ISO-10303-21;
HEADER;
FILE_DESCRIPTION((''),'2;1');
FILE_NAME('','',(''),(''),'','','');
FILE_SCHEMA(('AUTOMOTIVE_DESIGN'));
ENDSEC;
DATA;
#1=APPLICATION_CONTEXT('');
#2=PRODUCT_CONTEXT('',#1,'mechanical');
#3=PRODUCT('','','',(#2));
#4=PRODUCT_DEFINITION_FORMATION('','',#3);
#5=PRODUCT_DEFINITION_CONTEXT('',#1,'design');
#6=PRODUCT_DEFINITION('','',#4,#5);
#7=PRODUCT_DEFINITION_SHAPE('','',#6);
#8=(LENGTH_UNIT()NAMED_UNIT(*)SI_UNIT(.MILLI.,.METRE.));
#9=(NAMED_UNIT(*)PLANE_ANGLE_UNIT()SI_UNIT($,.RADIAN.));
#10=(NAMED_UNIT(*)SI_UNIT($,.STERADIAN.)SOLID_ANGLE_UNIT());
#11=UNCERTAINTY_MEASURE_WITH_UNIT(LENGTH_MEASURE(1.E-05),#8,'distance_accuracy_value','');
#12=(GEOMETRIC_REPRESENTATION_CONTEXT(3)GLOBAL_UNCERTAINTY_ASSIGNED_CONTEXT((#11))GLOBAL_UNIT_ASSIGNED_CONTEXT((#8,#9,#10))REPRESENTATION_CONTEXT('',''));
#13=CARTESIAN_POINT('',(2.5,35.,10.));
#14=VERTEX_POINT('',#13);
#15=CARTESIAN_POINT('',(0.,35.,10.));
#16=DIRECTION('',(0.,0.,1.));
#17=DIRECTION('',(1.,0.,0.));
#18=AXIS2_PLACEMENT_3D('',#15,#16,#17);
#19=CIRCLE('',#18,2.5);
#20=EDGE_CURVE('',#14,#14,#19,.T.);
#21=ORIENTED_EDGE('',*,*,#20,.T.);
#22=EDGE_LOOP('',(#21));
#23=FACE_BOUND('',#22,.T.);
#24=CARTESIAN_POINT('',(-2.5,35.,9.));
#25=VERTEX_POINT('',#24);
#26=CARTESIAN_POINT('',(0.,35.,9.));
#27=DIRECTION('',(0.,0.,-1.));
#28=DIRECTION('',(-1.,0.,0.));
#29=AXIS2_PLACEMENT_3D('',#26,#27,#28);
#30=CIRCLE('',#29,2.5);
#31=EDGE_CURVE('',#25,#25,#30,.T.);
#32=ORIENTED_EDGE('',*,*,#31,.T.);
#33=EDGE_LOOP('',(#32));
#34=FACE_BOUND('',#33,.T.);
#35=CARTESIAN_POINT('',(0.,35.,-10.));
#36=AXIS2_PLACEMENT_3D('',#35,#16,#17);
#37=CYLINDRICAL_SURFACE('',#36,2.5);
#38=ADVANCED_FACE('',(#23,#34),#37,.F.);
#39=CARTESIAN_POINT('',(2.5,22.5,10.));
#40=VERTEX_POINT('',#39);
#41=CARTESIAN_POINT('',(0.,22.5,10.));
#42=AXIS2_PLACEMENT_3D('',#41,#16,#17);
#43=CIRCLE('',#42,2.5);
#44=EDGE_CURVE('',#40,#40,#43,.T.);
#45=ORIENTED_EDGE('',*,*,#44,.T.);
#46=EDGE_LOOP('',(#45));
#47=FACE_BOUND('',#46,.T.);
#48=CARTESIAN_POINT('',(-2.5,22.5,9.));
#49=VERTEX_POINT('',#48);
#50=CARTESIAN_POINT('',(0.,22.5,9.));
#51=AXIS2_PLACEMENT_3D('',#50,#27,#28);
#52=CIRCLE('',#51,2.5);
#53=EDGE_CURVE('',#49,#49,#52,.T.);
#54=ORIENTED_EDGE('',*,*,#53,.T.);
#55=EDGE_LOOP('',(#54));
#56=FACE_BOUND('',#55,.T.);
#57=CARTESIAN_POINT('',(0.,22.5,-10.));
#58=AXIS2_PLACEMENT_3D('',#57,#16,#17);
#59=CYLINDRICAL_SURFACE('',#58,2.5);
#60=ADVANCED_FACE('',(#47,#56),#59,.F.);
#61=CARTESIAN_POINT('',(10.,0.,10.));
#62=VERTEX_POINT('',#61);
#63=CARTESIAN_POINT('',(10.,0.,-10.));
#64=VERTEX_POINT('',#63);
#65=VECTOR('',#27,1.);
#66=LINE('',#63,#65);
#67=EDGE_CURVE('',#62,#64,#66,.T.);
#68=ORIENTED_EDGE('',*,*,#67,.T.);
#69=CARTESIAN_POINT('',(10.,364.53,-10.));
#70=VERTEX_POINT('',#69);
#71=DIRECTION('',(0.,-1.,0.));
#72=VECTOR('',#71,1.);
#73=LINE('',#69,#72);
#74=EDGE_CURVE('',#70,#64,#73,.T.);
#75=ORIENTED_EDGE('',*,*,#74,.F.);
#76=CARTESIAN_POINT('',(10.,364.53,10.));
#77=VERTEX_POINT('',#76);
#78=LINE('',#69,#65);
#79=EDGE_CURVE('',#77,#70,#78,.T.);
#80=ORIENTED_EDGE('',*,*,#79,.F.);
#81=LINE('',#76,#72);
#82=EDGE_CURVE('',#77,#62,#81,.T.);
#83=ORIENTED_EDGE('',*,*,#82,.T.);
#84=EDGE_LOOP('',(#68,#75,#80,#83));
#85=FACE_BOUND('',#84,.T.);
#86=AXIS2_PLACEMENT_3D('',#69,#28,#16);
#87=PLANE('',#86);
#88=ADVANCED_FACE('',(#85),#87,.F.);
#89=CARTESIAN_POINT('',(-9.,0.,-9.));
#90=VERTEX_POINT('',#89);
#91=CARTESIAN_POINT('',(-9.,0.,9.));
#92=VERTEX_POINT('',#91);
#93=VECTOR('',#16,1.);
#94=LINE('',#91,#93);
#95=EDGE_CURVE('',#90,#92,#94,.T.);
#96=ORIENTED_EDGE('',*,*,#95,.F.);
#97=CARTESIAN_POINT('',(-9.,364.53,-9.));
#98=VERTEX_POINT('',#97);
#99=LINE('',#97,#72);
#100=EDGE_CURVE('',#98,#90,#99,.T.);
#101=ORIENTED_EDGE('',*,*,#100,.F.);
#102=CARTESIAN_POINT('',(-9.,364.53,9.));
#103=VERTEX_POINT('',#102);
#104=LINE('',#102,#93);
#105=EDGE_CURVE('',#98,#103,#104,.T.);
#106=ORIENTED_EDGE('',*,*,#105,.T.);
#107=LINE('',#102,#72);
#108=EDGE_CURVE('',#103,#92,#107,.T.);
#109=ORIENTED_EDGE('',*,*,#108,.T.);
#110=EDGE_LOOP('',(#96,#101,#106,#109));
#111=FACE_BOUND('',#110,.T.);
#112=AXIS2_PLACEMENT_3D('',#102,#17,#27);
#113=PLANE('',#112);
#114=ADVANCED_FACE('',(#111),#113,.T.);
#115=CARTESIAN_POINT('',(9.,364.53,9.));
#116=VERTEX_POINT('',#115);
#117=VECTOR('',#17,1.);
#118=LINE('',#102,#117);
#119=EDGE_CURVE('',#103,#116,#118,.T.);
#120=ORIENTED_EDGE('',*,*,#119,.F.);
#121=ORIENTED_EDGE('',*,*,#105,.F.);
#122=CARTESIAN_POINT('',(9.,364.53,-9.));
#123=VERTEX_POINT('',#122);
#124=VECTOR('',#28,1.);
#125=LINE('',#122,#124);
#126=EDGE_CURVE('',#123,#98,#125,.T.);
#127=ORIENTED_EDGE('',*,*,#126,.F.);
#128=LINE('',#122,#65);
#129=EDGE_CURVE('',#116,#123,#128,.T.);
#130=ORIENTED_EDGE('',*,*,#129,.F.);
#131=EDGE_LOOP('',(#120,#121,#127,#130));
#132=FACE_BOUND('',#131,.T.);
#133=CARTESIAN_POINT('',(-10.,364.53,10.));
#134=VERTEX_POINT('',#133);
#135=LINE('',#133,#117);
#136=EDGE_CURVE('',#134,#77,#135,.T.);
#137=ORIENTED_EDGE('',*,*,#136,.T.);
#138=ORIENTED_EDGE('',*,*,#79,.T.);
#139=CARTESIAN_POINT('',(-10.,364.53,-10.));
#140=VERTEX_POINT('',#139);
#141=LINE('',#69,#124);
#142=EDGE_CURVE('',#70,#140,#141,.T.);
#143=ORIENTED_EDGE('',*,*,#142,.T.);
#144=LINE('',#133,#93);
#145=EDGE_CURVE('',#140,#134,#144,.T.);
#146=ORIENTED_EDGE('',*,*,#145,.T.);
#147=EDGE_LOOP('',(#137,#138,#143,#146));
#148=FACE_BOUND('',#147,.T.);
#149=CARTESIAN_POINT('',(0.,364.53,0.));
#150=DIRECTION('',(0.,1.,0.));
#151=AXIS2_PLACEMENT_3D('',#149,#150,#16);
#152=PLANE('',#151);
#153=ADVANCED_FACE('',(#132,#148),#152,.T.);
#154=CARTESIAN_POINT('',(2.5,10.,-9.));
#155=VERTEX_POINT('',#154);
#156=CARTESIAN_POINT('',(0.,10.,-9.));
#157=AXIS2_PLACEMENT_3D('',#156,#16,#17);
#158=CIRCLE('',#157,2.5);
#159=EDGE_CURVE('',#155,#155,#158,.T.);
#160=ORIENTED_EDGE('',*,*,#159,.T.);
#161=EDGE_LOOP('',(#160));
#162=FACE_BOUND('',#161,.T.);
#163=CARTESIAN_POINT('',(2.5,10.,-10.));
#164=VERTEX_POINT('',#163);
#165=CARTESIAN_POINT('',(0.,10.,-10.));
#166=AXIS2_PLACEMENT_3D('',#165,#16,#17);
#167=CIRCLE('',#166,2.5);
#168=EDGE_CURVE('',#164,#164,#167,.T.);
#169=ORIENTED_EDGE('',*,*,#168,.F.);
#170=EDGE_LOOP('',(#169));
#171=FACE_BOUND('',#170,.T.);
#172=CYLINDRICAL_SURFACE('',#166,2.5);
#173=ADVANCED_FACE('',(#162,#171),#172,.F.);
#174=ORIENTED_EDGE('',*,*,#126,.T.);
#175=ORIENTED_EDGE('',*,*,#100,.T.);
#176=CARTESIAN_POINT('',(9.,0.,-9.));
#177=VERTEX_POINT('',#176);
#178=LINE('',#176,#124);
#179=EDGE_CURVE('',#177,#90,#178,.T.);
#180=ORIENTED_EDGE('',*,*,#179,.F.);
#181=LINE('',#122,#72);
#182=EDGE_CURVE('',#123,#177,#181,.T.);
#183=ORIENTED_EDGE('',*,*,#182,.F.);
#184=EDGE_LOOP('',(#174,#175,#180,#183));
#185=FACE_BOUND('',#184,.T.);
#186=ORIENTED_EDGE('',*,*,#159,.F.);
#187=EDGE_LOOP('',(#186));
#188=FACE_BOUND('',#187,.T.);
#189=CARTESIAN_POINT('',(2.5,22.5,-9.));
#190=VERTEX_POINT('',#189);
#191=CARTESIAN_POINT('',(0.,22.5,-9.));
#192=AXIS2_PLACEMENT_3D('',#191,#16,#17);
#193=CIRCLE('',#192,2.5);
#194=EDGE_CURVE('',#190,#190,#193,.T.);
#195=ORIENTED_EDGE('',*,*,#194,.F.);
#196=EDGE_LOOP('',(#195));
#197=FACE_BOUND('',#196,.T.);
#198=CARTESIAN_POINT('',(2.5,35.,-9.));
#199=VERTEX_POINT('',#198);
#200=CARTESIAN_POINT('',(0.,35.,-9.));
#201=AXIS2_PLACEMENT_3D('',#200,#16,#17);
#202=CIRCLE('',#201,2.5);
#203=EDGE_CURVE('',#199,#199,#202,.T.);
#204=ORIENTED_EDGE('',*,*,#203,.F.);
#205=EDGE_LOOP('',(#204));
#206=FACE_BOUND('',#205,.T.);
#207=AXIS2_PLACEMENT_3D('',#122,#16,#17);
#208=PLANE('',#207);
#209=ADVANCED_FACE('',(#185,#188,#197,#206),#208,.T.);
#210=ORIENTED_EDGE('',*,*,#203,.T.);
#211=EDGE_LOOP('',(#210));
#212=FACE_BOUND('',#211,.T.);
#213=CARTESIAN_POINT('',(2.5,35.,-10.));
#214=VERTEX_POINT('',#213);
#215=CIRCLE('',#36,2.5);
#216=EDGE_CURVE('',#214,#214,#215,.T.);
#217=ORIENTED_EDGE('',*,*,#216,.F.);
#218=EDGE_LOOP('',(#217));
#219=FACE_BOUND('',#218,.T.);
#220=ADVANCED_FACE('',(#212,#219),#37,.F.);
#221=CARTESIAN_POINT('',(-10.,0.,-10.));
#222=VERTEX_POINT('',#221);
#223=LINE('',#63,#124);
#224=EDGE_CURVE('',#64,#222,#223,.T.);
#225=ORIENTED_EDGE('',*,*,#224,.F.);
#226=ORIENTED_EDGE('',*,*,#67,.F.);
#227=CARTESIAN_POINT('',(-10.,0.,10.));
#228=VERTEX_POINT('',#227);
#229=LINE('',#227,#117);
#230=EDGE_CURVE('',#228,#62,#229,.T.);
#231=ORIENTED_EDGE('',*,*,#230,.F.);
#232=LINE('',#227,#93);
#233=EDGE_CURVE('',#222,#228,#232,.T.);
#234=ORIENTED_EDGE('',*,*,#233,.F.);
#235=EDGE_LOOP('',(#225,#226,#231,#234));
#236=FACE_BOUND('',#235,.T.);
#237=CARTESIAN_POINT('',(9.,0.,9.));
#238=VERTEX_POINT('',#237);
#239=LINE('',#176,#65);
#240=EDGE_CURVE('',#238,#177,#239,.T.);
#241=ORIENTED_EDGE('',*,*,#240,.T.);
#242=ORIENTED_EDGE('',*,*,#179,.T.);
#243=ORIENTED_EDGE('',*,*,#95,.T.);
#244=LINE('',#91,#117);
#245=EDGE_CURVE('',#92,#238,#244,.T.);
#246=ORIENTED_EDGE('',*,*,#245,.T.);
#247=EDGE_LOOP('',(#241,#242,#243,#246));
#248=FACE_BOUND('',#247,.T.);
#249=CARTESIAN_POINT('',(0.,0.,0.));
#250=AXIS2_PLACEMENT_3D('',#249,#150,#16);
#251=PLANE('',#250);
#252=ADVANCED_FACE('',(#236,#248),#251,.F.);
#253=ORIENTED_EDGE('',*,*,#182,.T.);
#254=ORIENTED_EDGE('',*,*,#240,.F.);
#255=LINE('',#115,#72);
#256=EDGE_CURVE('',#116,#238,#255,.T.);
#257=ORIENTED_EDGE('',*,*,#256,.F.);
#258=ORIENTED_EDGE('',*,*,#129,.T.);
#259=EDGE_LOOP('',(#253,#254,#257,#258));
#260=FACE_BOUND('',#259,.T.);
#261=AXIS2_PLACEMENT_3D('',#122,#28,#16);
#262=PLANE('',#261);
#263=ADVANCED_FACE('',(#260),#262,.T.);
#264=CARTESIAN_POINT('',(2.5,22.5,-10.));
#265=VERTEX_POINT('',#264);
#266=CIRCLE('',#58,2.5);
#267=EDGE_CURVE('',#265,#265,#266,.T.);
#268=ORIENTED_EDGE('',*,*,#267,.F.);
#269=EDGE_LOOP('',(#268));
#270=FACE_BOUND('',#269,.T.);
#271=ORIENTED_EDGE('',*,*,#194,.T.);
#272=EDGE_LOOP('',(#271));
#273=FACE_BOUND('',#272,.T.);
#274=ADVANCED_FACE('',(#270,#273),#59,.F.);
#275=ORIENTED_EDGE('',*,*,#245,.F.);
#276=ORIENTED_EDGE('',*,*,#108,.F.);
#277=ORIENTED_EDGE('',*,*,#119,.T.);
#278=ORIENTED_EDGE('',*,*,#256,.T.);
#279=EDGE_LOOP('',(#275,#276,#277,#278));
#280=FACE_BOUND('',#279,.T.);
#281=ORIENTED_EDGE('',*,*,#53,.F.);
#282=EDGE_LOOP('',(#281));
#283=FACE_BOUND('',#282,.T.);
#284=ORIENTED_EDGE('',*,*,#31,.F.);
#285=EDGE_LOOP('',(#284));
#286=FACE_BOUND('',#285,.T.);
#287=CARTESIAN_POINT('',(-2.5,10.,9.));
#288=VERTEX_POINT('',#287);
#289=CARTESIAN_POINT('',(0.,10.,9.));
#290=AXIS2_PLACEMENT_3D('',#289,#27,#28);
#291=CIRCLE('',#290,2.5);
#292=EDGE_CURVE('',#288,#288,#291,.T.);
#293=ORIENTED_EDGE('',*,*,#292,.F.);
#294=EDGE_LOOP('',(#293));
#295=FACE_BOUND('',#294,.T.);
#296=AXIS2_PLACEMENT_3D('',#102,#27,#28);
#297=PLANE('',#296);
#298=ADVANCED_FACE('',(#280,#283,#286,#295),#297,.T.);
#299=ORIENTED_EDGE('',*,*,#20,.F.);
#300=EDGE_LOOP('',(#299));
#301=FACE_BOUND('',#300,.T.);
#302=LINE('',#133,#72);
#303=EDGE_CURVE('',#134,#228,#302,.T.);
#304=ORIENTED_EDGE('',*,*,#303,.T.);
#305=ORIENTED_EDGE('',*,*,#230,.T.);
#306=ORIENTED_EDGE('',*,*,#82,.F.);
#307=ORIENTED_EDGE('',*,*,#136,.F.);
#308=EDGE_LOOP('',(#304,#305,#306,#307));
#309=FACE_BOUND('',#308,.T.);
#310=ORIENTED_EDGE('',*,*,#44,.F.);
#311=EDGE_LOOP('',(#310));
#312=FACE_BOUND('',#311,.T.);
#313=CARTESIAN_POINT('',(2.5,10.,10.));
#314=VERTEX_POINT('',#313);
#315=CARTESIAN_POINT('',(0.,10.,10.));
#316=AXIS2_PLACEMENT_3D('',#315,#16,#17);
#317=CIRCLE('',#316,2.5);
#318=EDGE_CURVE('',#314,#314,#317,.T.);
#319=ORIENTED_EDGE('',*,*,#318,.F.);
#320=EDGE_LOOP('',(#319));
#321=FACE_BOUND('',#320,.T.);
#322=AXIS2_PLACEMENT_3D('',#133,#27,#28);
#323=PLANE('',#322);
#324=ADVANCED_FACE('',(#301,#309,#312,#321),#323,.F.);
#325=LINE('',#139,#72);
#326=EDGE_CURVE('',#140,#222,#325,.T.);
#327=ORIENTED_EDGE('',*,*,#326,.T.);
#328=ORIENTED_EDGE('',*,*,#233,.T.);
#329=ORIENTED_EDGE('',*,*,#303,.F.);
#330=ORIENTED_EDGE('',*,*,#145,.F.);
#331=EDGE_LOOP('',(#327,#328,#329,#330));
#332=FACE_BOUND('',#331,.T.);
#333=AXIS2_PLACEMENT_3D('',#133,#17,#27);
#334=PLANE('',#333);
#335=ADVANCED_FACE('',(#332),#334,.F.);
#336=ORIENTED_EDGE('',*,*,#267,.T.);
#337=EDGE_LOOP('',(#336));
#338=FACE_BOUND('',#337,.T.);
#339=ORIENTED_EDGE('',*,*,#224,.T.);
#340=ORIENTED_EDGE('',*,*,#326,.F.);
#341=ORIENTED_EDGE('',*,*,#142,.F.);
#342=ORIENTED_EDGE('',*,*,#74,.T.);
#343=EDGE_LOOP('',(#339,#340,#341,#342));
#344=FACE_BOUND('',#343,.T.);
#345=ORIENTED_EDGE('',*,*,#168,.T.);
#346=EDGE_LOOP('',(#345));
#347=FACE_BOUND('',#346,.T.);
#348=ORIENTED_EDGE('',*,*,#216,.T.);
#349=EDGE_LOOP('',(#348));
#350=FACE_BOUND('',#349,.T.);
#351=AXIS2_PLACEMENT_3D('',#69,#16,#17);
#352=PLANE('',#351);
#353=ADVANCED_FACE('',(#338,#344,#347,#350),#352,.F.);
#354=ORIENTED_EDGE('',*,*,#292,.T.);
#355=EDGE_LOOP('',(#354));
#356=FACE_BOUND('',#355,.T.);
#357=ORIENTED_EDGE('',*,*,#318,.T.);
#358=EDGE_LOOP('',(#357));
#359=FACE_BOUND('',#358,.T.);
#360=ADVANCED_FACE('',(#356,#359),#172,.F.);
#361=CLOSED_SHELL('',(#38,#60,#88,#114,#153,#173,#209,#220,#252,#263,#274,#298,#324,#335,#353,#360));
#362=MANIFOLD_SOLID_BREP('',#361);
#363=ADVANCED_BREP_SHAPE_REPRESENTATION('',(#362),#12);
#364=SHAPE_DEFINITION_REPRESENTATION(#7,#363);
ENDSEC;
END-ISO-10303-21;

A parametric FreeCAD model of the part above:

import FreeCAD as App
import Part
import Sketcher

V = App.Vector

doc = App.newDocument("Part")
params = doc.addObject("Spreadsheet::Sheet", "Params")
for row, (alias, value) in enumerate([
    ("sketch1_width", "20 mm"),
    ("sketch1_width2", "18 mm"),
    ("pad1_length", "364.53 mm"),
    ("sketch2_diameter", "5 mm"),
], start=1):
    params.set(f"A{row}", alias)
    params.set(f"B{row}", "=" + value)
    params.setAlias(f"B{row}", alias)

body = doc.addObject("PartDesign::Body", "Body")

# Sketch on XZ plane
sketch1 = doc.addObject("Sketcher::SketchObject", "Sketch")
body.addObject(sketch1)
sketch1.AttachmentSupport = (doc.XZ_Plane, [""])
sketch1.MapMode = "FlatFace"
sketch1.addGeometry(Part.LineSegment(V(10, 10, 0), V(10, -10, 0)), False)
sketch1.addGeometry(Part.LineSegment(V(10, -10, 0), V(-10, -10, 0)), False)
sketch1.addGeometry(Part.LineSegment(V(-10, -10, 0), V(-10, 10, 0)), False)
sketch1.addGeometry(Part.LineSegment(V(-10, 10, 0), V(10, 10, 0)), False)
sketch1.addGeometry(Part.LineSegment(V(-9, -9, 0), V(9, -9, 0)), False)
sketch1.addGeometry(Part.LineSegment(V(9, -9, 0), V(9, 9, 0)), False)
sketch1.addGeometry(Part.LineSegment(V(9, 9, 0), V(-9, 9, 0)), False)
sketch1.addGeometry(Part.LineSegment(V(-9, 9, 0), V(-9, -9, 0)), False)
sketch1.addConstraint(Sketcher.Constraint("Coincident", 0, 2, 1, 1))
sketch1.addConstraint(Sketcher.Constraint("Coincident", 1, 2, 2, 1))
sketch1.addConstraint(Sketcher.Constraint("Coincident", 2, 2, 3, 1))
sketch1.addConstraint(Sketcher.Constraint("Coincident", 3, 2, 0, 1))
sketch1.addConstraint(Sketcher.Constraint("Coincident", 4, 2, 5, 1))
sketch1.addConstraint(Sketcher.Constraint("Coincident", 5, 2, 6, 1))
sketch1.addConstraint(Sketcher.Constraint("Coincident", 6, 2, 7, 1))
sketch1.addConstraint(Sketcher.Constraint("Coincident", 7, 2, 4, 1))
sketch1.addConstraint(Sketcher.Constraint("Vertical", 0))
sketch1.addConstraint(Sketcher.Constraint("Horizontal", 1))
sketch1.addConstraint(Sketcher.Constraint("Vertical", 2))
sketch1.addConstraint(Sketcher.Constraint("Horizontal", 3))
sketch1.addConstraint(Sketcher.Constraint("Horizontal", 4))
sketch1.addConstraint(Sketcher.Constraint("Vertical", 5))
sketch1.addConstraint(Sketcher.Constraint("Horizontal", 6))
sketch1.addConstraint(Sketcher.Constraint("Vertical", 7))
sketch1.addConstraint(Sketcher.Constraint("Symmetric", 0, 2, 2, 2, -1, 1))
sketch1.addConstraint(Sketcher.Constraint("Symmetric", 4, 2, 6, 2, -1, 1))
sketch1.addConstraint(Sketcher.Constraint("Equal", 3, 0))
sketch1.addConstraint(Sketcher.Constraint("Equal", 6, 5))
sketch1.addConstraint(Sketcher.Constraint("DistanceX", 1, 2, 1, 1, 20.0))
sketch1.addConstraint(Sketcher.Constraint("DistanceX", 4, 1, 4, 2, 18.0))
sketch1.setExpression("Constraints[20]", "Params.sketch1_width")
sketch1.setExpression("Constraints[21]", "Params.sketch1_width2")
pad1 = doc.addObject("PartDesign::Pad", "Pad")
body.addObject(pad1)
pad1.Profile = sketch1
pad1.setExpression("Length", "Params.pad1_length")
pad1.Reversed = True

# Sketch on XY plane
sketch2 = doc.addObject("Sketcher::SketchObject", "Sketch001")
body.addObject(sketch2)
sketch2.AttachmentSupport = (doc.XY_Plane, [""])
sketch2.MapMode = "FlatFace"
sketch2.AttachmentOffset = App.Placement(V(0, 0, 10), App.Rotation())
sketch2.addGeometry(Part.Circle(V(0, 10, 0), V(0, 0, 1), 2.5), False)
sketch2.addGeometry(Part.Circle(V(0, 22.5, 0), V(0, 0, 1), 2.5), False)
sketch2.addGeometry(Part.Circle(V(0, 35, 0), V(0, 0, 1), 2.5), False)
sketch2.addConstraint(Sketcher.Constraint("Equal", 0, 1))
sketch2.addConstraint(Sketcher.Constraint("Equal", 1, 2))
sketch2.addConstraint(Sketcher.Constraint("PointOnObject", 0, 3, -2))
sketch2.addConstraint(Sketcher.Constraint("PointOnObject", 1, 3, -2))
sketch2.addConstraint(Sketcher.Constraint("PointOnObject", 2, 3, -2))
sketch2.addConstraint(Sketcher.Constraint("Diameter", 0, 5.0))
sketch2.addConstraint(Sketcher.Constraint("DistanceY", -1, 1, 0, 3, 10.0))
sketch2.addConstraint(Sketcher.Constraint("DistanceY", -1, 1, 2, 3, 35.0))
sketch2.addConstraint(Sketcher.Constraint("DistanceY", -1, 1, 1, 3, 22.5))
sketch2.setExpression("Constraints[5]", "Params.sketch2_diameter")
pocket1 = doc.addObject("PartDesign::Pocket", "Pocket")
body.addObject(pocket1)
pocket1.Profile = sketch2
pocket1.Type = "ThroughAll"

doc.recompute()
